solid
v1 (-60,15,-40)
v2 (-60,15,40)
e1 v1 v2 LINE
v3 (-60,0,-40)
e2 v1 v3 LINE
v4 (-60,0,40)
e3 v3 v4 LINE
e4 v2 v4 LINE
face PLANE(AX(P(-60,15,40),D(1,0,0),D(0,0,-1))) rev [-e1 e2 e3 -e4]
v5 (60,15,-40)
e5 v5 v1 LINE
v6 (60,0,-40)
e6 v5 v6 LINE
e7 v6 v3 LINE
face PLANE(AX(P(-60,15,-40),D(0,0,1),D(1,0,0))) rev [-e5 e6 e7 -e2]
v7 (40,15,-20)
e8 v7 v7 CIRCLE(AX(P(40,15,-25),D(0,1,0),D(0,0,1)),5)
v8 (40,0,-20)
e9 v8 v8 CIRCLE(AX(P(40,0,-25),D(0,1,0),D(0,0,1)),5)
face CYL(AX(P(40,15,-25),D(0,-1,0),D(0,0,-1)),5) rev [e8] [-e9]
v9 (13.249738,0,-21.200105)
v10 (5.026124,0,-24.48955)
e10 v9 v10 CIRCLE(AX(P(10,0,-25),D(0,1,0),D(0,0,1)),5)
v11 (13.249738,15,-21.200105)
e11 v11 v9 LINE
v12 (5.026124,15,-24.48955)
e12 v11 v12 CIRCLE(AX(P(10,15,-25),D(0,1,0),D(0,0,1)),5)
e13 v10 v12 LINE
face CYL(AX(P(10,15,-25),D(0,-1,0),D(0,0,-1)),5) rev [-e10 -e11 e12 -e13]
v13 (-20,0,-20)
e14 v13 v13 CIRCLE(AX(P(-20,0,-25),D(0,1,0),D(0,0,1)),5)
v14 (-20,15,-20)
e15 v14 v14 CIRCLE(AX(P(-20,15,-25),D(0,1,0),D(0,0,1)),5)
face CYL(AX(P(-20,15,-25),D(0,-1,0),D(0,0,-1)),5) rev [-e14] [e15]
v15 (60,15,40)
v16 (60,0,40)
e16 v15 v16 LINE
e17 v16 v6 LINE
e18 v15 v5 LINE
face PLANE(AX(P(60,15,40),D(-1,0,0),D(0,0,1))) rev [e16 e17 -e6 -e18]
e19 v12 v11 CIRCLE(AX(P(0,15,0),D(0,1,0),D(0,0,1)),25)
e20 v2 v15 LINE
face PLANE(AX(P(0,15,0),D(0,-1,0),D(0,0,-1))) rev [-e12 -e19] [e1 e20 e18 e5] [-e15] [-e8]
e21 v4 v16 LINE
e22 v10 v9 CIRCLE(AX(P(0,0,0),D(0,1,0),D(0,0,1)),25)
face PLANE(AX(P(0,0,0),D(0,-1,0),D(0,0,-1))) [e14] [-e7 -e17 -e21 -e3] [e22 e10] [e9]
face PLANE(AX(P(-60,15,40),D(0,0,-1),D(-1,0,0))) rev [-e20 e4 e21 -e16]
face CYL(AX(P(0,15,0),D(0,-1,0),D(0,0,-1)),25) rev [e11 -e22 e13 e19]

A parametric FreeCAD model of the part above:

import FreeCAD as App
import Part
import Sketcher

V = App.Vector
Q = App.Units.Quantity


def add_polygon(sketch, points):
    """Adds a closed chain of lines whose ends are joined by coincident constraints."""
    first, n = sketch.GeometryCount, len(points)
    for a, b in zip(points, points[1:] + points[:1]):
        sketch.addGeometry(Part.LineSegment(App.Vector(*a, 0), App.Vector(*b, 0)), False)
    for i in range(n):
        sketch.addConstraint(Sketcher.Constraint("Coincident", first + i, 2, first + (i + 1) % n, 1))

doc = App.newDocument("Part")
params = doc.addObject("Spreadsheet::Sheet", "Params")
for row, (alias, value) in enumerate([
    ("sketch1_width", "120 mm"),
    ("sketch1_height", "80 mm"),
    ("pad1_length", "15 mm"),
    ("sketch2_diameter", "50 mm"),
    ("pocket1_length", "15 mm"),
    ("sketch3_diameter", "10 mm"),
    ("pocket2_length", "15 mm"),
    ("linearpattern_pitch", "30 mm"),
], start=1):
    params.set(f"A{row}", alias)
    params.set(f"B{row}", "=" + value)
    params.setAlias(f"B{row}", alias)

body = doc.addObject("PartDesign::Body", "Body")

sketch1 = body.newObject("Sketcher::SketchObject", "Sketch")
sketch1.AttachmentSupport = (doc.getObject("XZ_Plane"), [""])
sketch1.MapMode = "FlatFace"
add_polygon(sketch1, [(-60, -40), (-60, 40), (60, 40), (60, -40)])
sketch1.addConstraint([
    Sketcher.Constraint("Vertical", 0),
    Sketcher.Constraint("Horizontal", 1),
    Sketcher.Constraint("Vertical", 2),
    Sketcher.Constraint("Horizontal", 3),
    Sketcher.Constraint("Symmetric", 0, 2, 2, 2, -1, 1),
    Sketcher.Constraint("DistanceX", 1, 1, 1, 2, Q("120 mm")),
    Sketcher.Constraint("DistanceY", 0, 1, 0, 2, Q("80 mm")),
])
sketch1.setExpression("Constraints[9]", "Params.sketch1_width")
sketch1.setExpression("Constraints[10]", "Params.sketch1_height")
pad1 = body.newObject("PartDesign::Pad", "Pad")
pad1.Profile = sketch1
pad1.setExpression("Length", "Params.pad1_length")
pad1.Reversed = True

sketch2 = body.newObject("Sketcher::SketchObject", "Sketch001")
sketch2.AttachmentSupport = (doc.getObject("XZ_Plane"), [""])
sketch2.MapMode = "FlatFace"
sketch2.addGeometry(Part.Circle(V(0, 0, 0), V(0, 0, 1), 25), False)
sketch2.addConstraint([
    Sketcher.Constraint("Coincident", 0, 3, -1, 1),
    Sketcher.Constraint("Diameter", 0, Q("50 mm")),
])
sketch2.setExpression("Constraints[1]", "Params.sketch2_diameter")
pocket1 = body.newObject("PartDesign::Pocket", "Pocket")
pocket1.Profile = sketch2
pocket1.setExpression("Length", "Params.pocket1_length")

sketch3 = body.newObject("Sketcher::SketchObject", "Sketch002")
sketch3.AttachmentSupport = (doc.getObject("XZ_Plane"), [""])
sketch3.MapMode = "FlatFace"
sketch3.addGeometry(Part.Circle(V(40, -25, 0), V(0, 0, 1), 5), False)
sketch3.addConstraint([
    Sketcher.Constraint("Diameter", 0, Q("10 mm")),
    Sketcher.Constraint("DistanceX", -1, 1, 0, 3, Q("40 mm")),
    Sketcher.Constraint("DistanceY", 0, 3, -1, 1, Q("25 mm")),
])
sketch3.setExpression("Constraints[0]", "Params.sketch3_diameter")
pocket2 = body.newObject("PartDesign::Pocket", "Pocket001")
pocket2.Profile = sketch3
pocket2.setExpression("Length", "Params.pocket2_length")
doc.recompute()

linearpattern = body.newObject("PartDesign::LinearPattern", "LinearPattern")
linearpattern.Originals = [pocket2]
linearpattern.Direction = (doc.getObject("X_Axis"), [""])
linearpattern.Mode = "offset"
linearpattern.setExpression("Offset", "Params.linearpattern_pitch")
linearpattern.Occurrences = 3
linearpattern.Reversed = True
body.Tip = linearpattern

doc.recompute()
